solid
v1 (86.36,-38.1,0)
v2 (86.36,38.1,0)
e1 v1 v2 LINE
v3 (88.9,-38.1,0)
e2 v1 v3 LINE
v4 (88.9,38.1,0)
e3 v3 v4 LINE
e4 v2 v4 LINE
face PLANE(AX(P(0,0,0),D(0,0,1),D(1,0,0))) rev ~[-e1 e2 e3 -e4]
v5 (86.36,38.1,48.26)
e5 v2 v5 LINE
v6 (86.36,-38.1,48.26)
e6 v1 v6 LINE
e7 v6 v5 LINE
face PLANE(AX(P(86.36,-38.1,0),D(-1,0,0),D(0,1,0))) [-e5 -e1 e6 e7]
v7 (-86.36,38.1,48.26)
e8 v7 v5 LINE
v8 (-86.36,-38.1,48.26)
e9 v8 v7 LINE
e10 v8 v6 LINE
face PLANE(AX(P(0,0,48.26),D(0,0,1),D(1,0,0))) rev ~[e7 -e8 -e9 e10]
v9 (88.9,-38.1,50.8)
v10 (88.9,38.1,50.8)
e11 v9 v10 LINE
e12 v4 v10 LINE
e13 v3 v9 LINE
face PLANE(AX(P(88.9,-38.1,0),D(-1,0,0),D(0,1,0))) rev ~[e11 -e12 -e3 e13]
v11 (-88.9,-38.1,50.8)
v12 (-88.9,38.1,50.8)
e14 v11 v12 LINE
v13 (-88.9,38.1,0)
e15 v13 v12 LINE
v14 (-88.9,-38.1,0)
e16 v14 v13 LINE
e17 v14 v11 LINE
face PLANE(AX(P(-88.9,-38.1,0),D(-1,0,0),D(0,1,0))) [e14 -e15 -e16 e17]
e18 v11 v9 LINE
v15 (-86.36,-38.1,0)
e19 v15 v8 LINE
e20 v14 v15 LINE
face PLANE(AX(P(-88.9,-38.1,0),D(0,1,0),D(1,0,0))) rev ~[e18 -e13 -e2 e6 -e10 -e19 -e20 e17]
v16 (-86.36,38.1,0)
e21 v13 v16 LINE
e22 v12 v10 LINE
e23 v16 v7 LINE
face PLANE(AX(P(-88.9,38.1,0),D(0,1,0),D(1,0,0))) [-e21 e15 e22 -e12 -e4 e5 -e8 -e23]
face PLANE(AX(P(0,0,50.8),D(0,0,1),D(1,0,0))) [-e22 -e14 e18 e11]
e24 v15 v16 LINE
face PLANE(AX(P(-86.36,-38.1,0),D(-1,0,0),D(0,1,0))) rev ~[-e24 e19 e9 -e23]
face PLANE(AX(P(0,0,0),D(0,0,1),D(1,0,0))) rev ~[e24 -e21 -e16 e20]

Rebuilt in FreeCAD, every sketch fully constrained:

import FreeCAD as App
import Part
import Sketcher
Q = App.Units.Quantity


def faces_at(feature, points):
    """Names of the faces that lie closest to the given points."""
    faces = feature.Shape.Faces
    near = lambda p: min(range(len(faces)), key=lambda i: faces[i].distToShape(Part.Vertex(*p))[0])
    return sorted({f"Face{near(p) + 1}" for p in points})


def add_polygon(sketch, points):
    """Adds a closed chain of lines whose ends are joined by coincident constraints."""
    first, n = sketch.GeometryCount, len(points)
    for a, b in zip(points, points[1:] + points[:1]):
        sketch.addGeometry(Part.LineSegment(App.Vector(*a, 0), App.Vector(*b, 0)), False)
    for i in range(n):
        sketch.addConstraint(Sketcher.Constraint("Coincident", first + i, 2, first + (i + 1) % n, 1))

doc = App.newDocument("Part")
params = doc.addObject("Spreadsheet::Sheet", "Params")
for row, (alias, value) in enumerate([
    ("sketch1_width", "7 in"),
    ("sketch1_height", "3 in"),
    ("pad1_length", "2 in"),
    ("thickness_wall", "0.1 in"),
], start=1):
    params.set(f"A{row}", alias)
    params.set(f"B{row}", "=" + value)
    params.setAlias(f"B{row}", alias)

body = doc.addObject("PartDesign::Body", "Body")

# Sketch on XY plane
sketch1 = body.newObject("Sketcher::SketchObject", "Sketch")
sketch1.AttachmentSupport = (doc.getObject("XY_Plane"), [""])
sketch1.MapMode = "FlatFace"
add_polygon(sketch1, [(-88.9, 38.1), (-88.9, -38.1), (88.9, -38.1), (88.9, 38.1)])  # lines 0-3
sketch1.addConstraint(Sketcher.Constraint("Vertical", 0))
sketch1.addConstraint(Sketcher.Constraint("Horizontal", 1))
sketch1.addConstraint(Sketcher.Constraint("Vertical", 2))
sketch1.addConstraint(Sketcher.Constraint("Horizontal", 3))
sketch1.addConstraint(Sketcher.Constraint("Symmetric", 0, 2, 2, 2, -1, 1))
sketch1.addConstraint(Sketcher.Constraint("DistanceX", 1, 1, 1, 2, Q("7 in")))
sketch1.addConstraint(Sketcher.Constraint("DistanceY", 0, 2, 0, 1, Q("3 in")))
sketch1.setExpression("Constraints[9]", "Params.sketch1_width")
sketch1.setExpression("Constraints[10]", "Params.sketch1_height")
pad1 = body.newObject("PartDesign::Pad", "Pad")
pad1.Profile = sketch1
pad1.setExpression("Length", "Params.pad1_length")
doc.recompute()

thickness = body.newObject("PartDesign::Thickness", "Thickness")
thickness.Base = (pad1, faces_at(pad1, [(0, -38.1, 25.4), (0, 38.1, 25.4), (0, 0, 0)]))
thickness.setExpression("Value", "Params.thickness_wall")
thickness.Reversed = True
thickness.Join = "Arc"

doc.recompute()
